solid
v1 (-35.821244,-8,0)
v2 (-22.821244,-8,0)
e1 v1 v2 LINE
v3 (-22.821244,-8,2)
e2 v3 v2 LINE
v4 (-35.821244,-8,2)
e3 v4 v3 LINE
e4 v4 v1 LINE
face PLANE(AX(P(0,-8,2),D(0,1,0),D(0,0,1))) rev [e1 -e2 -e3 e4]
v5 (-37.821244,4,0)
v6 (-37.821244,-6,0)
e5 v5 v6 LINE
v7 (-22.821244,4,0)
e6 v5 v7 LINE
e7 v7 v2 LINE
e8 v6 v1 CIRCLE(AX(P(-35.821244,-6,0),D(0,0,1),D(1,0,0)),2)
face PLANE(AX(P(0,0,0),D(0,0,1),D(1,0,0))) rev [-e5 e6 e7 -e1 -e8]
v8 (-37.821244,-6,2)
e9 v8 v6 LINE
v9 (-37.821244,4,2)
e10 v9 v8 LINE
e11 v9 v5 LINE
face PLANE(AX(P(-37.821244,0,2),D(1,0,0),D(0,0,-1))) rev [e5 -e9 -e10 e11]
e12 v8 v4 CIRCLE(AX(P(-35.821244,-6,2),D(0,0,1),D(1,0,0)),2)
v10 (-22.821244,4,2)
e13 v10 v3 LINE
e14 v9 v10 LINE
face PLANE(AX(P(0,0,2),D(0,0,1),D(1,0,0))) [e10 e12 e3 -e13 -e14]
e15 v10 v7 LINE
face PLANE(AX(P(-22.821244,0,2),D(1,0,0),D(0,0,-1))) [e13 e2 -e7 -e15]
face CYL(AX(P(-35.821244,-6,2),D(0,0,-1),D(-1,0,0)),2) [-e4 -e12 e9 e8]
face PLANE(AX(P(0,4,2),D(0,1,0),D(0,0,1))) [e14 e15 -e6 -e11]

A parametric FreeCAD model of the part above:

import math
import FreeCAD as App
import Part
import Sketcher
Q = App.Units.Quantity

doc = App.newDocument("Part")
body = doc.addObject("PartDesign::Body", "Body")

# Sketch on XY plane
sketch1 = body.newObject("Sketcher::SketchObject", "Sketch")
sketch1.AttachmentSupport = (doc.getObject("XY_Plane"), [""])
sketch1.MapMode = "FlatFace"
sketch1.addGeometry(Part.ArcOfCircle(Part.Circle(App.Vector(-35.8, -6, 0), App.Vector(0, 0, 1), 2), math.radians(-180), math.radians(-90)), False)
sketch1.addGeometry(Part.LineSegment(App.Vector(-35.8, -8, 0), App.Vector(-22.8, -8, 0)), False)
sketch1.addGeometry(Part.LineSegment(App.Vector(-22.8, -8, 0), App.Vector(-22.8, 4, 0)), False)
sketch1.addGeometry(Part.LineSegment(App.Vector(-22.8, 4, 0), App.Vector(-37.8, 4, 0)), False)
sketch1.addGeometry(Part.LineSegment(App.Vector(-37.8, 4, 0), App.Vector(-37.8, -6, 0)), False)
sketch1.addConstraint(Sketcher.Constraint("Tangent", 0, 2, 1, 1))
sketch1.addConstraint(Sketcher.Constraint("Coincident", 1, 2, 2, 1))
sketch1.addConstraint(Sketcher.Constraint("Coincident", 2, 2, 3, 1))
sketch1.addConstraint(Sketcher.Constraint("Coincident", 3, 2, 4, 1))
sketch1.addConstraint(Sketcher.Constraint("Tangent", 4, 2, 0, 1))
sketch1.addConstraint(Sketcher.Constraint("Horizontal", 1))
sketch1.addConstraint(Sketcher.Constraint("Vertical", 2))
sketch1.addConstraint(Sketcher.Constraint("Horizontal", 3))
sketch1.addConstraint(Sketcher.Constraint("Vertical", 4))
sketch1.addConstraint(Sketcher.Constraint("Radius", 0, Q("2 mm")))
sketch1.addConstraint(Sketcher.Constraint("DistanceX", 1, 1, 1, 2, Q("13 mm")))
sketch1.addConstraint(Sketcher.Constraint("DistanceY", 2, 1, 2, 2, Q("12 mm")))
sketch1.addConstraint(Sketcher.Constraint("DistanceY", 0, 3, -1, 1, Q("6 mm")))
sketch1.addConstraint(Sketcher.Constraint("DistanceX", 0, 3, -1, 1, Q("35.821244 mm")))
pad1 = body.newObject("PartDesign::Pad", "Pad")
pad1.Profile = sketch1
pad1.Length = 2

doc.recompute()
